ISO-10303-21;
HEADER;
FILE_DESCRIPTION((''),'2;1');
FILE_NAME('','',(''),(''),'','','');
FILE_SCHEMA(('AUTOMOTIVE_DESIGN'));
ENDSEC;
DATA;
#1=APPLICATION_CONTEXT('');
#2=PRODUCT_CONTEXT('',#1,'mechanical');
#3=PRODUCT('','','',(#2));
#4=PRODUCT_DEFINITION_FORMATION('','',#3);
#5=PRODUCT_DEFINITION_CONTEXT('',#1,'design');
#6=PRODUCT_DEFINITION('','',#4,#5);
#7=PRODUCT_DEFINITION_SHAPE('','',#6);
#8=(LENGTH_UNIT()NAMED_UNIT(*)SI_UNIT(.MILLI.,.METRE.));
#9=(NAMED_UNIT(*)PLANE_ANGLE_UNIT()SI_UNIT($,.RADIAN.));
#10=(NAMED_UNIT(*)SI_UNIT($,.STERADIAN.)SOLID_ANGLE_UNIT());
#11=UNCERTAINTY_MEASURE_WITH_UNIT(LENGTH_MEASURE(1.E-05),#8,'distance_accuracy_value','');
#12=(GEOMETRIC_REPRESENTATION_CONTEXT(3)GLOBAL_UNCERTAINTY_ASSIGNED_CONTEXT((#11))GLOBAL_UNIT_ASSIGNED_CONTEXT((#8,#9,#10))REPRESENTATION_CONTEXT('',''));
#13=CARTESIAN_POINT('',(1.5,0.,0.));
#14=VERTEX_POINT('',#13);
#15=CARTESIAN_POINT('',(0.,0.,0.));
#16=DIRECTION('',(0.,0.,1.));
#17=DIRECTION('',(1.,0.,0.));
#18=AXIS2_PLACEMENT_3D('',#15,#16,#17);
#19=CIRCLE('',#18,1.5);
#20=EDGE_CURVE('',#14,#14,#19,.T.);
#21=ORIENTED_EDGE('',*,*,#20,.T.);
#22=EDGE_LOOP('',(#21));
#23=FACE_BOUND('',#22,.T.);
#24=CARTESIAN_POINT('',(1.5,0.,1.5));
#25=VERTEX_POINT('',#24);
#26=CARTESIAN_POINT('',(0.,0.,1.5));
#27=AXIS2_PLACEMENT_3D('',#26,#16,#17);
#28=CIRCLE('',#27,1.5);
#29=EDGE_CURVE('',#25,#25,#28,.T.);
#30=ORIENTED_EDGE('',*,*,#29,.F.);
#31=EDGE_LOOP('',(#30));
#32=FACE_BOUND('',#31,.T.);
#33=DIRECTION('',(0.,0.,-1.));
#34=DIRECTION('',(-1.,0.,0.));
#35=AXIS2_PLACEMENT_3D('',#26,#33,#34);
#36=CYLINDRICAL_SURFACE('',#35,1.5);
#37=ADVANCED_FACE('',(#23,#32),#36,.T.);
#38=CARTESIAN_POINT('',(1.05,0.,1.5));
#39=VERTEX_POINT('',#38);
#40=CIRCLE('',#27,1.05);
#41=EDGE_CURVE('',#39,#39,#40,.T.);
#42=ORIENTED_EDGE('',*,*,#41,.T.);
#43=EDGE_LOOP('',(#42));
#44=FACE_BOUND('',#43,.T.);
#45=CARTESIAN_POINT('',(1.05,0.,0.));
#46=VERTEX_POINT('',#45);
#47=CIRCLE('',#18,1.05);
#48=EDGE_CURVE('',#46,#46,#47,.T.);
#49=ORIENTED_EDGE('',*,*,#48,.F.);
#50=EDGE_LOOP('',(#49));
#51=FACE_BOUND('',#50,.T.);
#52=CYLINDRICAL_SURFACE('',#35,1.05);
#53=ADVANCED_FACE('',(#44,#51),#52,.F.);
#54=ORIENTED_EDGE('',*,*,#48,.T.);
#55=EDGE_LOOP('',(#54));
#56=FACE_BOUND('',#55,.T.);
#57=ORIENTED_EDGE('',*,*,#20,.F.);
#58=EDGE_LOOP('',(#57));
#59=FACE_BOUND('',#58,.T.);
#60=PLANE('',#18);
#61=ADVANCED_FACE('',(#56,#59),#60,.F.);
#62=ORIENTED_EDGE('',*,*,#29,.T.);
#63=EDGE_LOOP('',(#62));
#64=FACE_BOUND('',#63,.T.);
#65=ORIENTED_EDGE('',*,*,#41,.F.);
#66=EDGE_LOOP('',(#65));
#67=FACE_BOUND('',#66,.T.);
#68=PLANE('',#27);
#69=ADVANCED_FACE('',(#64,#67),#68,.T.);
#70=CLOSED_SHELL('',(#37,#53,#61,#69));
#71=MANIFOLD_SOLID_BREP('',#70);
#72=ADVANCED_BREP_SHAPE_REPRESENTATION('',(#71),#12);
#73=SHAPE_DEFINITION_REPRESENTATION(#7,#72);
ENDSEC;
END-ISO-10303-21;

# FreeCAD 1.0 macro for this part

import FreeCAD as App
import Part
import Sketcher
from FreeCAD import Vector
Q = App.Units.Quantity

doc = App.newDocument("Part")
params = doc.addObject("Spreadsheet::Sheet", "Params")
for row, (alias, value) in enumerate([
    ("sketch1_diameter", "3 mm"),
    ("sketch1_diameter2", "2.1 mm"),
    ("pad1_length", "1.5 mm"),
], start=1):
    params.set(f"A{row}", alias)
    params.set(f"B{row}", "=" + value)
    params.setAlias(f"B{row}", alias)

body = doc.addObject("PartDesign::Body", "Body")

sketch1 = body.newObject("Sketcher::SketchObject", "Sketch")
sketch1.AttachmentSupport = (doc.getObject("XY_Plane"), [""])
sketch1.MapMode = "FlatFace"
sketch1.addGeometry(Part.Circle(Vector(0, 0, 0), Vector(0, 0, 1), 1.5), False)
sketch1.addGeometry(Part.Circle(Vector(0, 0, 0), Vector(0, 0, 1), 1.1), False)
sketch1.addConstraint(Sketcher.Constraint("Coincident", 0, 3, -1, 1))
sketch1.addConstraint(Sketcher.Constraint("Coincident", 1, 3, -1, 1))
sketch1.addConstraint(Sketcher.Constraint("Diameter", 0, Q("3 mm")))
sketch1.addConstraint(Sketcher.Constraint("Diameter", 1, Q("2.1 mm")))
sketch1.setExpression("Constraints[2]", "Params.sketch1_diameter")
sketch1.setExpression("Constraints[3]", "Params.sketch1_diameter2")
pad1 = body.newObject("PartDesign::Pad", "Pad")
pad1.Profile = sketch1
pad1.setExpression("Length", "Params.pad1_length")

doc.recompute()
